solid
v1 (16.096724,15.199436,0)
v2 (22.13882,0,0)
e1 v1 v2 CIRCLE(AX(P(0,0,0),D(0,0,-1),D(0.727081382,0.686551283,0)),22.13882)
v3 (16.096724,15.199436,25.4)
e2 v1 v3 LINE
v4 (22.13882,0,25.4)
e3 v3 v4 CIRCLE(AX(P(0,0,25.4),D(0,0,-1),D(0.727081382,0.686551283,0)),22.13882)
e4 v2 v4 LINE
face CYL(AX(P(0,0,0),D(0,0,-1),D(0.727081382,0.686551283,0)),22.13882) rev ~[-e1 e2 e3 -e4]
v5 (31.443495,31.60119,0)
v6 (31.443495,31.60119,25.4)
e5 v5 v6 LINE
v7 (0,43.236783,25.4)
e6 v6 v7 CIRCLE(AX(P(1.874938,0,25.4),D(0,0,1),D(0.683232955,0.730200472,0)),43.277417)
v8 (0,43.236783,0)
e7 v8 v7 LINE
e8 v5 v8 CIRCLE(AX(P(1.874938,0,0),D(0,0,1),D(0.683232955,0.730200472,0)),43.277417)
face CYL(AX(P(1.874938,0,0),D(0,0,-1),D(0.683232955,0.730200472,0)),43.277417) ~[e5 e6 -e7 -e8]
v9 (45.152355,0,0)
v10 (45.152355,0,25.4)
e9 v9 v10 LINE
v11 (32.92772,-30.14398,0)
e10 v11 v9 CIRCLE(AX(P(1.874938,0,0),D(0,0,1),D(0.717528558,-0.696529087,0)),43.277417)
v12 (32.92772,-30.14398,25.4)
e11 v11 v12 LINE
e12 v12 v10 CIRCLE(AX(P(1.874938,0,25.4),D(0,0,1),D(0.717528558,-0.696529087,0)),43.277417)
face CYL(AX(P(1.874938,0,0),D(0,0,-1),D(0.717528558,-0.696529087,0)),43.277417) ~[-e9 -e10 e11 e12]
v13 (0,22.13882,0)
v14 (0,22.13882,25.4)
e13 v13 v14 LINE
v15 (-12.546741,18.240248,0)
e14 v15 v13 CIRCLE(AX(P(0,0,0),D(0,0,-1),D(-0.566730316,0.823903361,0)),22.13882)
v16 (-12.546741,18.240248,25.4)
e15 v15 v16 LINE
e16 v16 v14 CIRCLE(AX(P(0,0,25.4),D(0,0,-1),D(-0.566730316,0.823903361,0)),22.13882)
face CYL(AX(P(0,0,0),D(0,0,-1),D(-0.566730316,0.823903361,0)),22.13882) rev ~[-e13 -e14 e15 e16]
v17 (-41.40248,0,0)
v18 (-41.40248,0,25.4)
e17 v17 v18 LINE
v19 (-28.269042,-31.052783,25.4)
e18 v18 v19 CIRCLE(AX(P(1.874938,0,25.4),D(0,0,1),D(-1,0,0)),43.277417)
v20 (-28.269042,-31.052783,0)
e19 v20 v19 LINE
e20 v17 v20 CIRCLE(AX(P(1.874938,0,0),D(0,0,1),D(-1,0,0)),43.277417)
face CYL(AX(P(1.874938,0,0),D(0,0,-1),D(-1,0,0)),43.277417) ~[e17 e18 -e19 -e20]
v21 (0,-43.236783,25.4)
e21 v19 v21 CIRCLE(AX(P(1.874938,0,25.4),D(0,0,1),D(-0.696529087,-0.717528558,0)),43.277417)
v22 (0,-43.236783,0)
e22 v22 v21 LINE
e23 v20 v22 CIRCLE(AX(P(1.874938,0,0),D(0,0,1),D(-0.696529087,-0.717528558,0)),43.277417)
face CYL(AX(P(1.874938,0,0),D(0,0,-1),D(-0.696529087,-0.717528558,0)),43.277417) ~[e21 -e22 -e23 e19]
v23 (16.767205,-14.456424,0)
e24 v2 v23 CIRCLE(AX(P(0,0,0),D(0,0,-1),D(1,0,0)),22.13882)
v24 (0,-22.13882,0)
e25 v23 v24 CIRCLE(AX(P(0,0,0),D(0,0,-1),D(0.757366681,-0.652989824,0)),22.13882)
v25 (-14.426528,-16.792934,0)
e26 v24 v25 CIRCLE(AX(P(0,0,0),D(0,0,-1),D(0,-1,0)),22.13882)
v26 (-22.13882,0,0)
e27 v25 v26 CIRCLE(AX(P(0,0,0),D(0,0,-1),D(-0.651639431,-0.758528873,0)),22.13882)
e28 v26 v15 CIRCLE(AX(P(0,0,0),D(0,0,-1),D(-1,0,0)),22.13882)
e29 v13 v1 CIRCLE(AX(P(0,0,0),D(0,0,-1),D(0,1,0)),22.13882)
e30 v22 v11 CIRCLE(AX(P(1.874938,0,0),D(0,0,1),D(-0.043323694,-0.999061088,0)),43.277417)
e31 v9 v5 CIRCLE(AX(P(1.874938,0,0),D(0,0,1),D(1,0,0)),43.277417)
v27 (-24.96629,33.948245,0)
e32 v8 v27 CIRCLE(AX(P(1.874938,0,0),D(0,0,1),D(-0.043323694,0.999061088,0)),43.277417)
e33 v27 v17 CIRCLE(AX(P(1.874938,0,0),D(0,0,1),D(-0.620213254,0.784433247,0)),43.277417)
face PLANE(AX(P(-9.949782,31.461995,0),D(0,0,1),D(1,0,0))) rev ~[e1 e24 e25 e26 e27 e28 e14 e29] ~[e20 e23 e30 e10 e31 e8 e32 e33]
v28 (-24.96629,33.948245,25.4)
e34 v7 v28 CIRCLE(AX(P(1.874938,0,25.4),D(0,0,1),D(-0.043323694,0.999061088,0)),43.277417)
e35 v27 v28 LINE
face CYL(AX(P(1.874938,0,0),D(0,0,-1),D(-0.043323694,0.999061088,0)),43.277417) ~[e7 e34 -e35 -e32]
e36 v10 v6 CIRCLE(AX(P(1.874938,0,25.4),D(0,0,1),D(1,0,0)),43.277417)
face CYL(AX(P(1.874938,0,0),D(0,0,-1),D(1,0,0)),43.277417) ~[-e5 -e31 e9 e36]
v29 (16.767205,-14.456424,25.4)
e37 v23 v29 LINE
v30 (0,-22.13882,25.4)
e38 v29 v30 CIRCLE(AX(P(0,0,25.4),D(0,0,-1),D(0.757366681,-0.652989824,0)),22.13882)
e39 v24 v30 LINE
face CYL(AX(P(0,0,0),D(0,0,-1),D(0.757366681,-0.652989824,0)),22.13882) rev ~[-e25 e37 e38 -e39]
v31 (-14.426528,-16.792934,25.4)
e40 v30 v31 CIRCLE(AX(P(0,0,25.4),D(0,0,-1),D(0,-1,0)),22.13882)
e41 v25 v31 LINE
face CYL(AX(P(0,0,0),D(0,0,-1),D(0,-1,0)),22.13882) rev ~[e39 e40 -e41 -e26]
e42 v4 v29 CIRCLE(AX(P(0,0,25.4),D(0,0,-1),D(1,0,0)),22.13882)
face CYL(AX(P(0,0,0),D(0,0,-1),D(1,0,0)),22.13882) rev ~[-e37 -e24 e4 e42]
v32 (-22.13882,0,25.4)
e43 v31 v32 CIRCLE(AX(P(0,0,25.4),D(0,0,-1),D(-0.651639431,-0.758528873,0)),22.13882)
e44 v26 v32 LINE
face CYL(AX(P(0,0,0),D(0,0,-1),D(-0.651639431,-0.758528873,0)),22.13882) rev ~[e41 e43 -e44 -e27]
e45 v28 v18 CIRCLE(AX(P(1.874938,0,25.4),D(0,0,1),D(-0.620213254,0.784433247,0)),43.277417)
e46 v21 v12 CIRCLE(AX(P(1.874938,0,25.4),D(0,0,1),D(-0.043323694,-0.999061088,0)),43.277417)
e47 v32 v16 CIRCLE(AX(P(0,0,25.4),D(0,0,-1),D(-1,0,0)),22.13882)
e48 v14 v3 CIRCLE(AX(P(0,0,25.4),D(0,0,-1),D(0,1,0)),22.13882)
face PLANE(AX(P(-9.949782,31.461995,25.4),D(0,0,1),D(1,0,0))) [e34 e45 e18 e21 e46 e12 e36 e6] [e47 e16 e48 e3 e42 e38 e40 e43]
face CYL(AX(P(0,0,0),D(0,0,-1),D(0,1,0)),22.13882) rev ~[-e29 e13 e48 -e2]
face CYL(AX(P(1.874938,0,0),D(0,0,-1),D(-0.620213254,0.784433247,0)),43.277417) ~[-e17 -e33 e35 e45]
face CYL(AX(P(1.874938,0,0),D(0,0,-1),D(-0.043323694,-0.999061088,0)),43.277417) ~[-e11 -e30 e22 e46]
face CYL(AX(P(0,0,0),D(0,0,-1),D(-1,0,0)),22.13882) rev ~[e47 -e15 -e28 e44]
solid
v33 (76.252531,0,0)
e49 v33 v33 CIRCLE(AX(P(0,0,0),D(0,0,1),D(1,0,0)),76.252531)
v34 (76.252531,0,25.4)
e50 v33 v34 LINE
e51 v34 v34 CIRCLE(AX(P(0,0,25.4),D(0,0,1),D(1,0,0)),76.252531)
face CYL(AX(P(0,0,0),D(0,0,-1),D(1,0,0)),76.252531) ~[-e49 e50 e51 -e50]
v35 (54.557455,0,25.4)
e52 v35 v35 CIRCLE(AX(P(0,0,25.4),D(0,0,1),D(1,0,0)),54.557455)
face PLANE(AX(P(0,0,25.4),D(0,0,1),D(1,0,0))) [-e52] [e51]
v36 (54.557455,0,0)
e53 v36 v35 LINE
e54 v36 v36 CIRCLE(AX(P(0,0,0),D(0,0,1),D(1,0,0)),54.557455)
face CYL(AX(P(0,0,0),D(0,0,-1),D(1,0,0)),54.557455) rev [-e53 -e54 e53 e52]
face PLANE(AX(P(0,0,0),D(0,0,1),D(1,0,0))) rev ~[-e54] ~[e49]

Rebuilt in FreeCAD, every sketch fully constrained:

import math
import FreeCAD as App
import Part
import Sketcher
from FreeCAD import Vector

doc = App.newDocument("Part")
params = doc.addObject("Spreadsheet::Sheet", "Params")
for row, (alias, value) in enumerate([
    ("pad1_length", "1 in"),
    ("pad2_length", "1 in"),
], start=1):
    params.set(f"A{row}", alias)
    params.set(f"B{row}", "=" + value)
    params.setAlias(f"B{row}", alias)

body = doc.addObject("PartDesign::Body", "Body")

# Sketch on XY plane
sketch1 = body.newObject("Sketcher::SketchObject", "Sketch")
sketch1.AttachmentSupport = (doc.getObject("XY_Plane"), [""])
sketch1.MapMode = "FlatFace"
sketch1.addGeometry(Part.Circle(Vector(0, 0, 0), Vector(0, 0, 1), 76), False)
sketch1.addGeometry(Part.Circle(Vector(0, 0, 0), Vector(0, 0, 1), 55), False)
sketch1.addConstraint(Sketcher.Constraint("Coincident", 0, 3, -1, 1))
sketch1.addConstraint(Sketcher.Constraint("Coincident", 1, 3, -1, 1))
sketch1.addConstraint(Sketcher.Constraint("Diameter", 1, 109.11491))
sketch1.addConstraint(Sketcher.Constraint("Diameter", 0, 152.505063))
pad1 = body.newObject("PartDesign::Pad", "Pad")
pad1.Profile = sketch1
pad1.setExpression("Length", "Params.pad1_length")
body2 = doc.addObject("PartDesign::Body", "Body001")

# Sketch on XY plane
sketch2 = body2.newObject("Sketcher::SketchObject", "Sketch001")
sketch2.AttachmentSupport = (doc.getObject("XY_Plane001"), [""])
sketch2.MapMode = "FlatFace"
sketch2.addGeometry(Part.ArcOfCircle(Part.Circle(Vector(2, 0, 0), Vector(0, 0, 1), 43), math.radians(180), math.radians(226)), False)
sketch2.addGeometry(Part.ArcOfCircle(Part.Circle(Vector(2, 0, 0), Vector(0, 0, 1), 43), math.radians(-134), math.radians(-92)), False)
sketch2.addGeometry(Part.ArcOfCircle(Part.Circle(Vector(2, 0, 0), Vector(0, 0, 1), 43), math.radians(-92), math.radians(-44)), False)
sketch2.addGeometry(Part.ArcOfCircle(Part.Circle(Vector(2, 0, 0), Vector(0, 0, 1), 43), math.radians(-44), math.radians(0)), False)
sketch2.addGeometry(Part.ArcOfCircle(Part.Circle(Vector(2, 0, 0), Vector(0, 0, 1), 43), math.radians(0), math.radians(47)), False)
sketch2.addGeometry(Part.ArcOfCircle(Part.Circle(Vector(2, 0, 0), Vector(0, 0, 1), 43), math.radians(47), math.radians(92)), False)
sketch2.addGeometry(Part.ArcOfCircle(Part.Circle(Vector(2, 0, 0), Vector(0, 0, 1), 43), math.radians(92), math.radians(128)), False)
sketch2.addGeometry(Part.ArcOfCircle(Part.Circle(Vector(2, 0, 0), Vector(0, 0, 1), 43), math.radians(128), math.radians(180)), False)
sketch2.addGeometry(Part.ArcOfCircle(Part.Circle(Vector(0, 0, 0), Vector(0, 0, 1), 22), math.radians(90), math.radians(125)), False)
sketch2.addGeometry(Part.ArcOfCircle(Part.Circle(Vector(0, 0, 0), Vector(0, 0, 1), 22), math.radians(43), math.radians(90)), False)
sketch2.addGeometry(Part.ArcOfCircle(Part.Circle(Vector(0, 0, 0), Vector(0, 0, 1), 22), math.radians(0), math.radians(43)), False)
sketch2.addGeometry(Part.ArcOfCircle(Part.Circle(Vector(0, 0, 0), Vector(0, 0, 1), 22), math.radians(-41), math.radians(0)), False)
sketch2.addGeometry(Part.ArcOfCircle(Part.Circle(Vector(0, 0, 0), Vector(0, 0, 1), 22), math.radians(-90), math.radians(-41)), False)
sketch2.addGeometry(Part.ArcOfCircle(Part.Circle(Vector(0, 0, 0), Vector(0, 0, 1), 22), math.radians(-131), math.radians(-90)), False)
sketch2.addGeometry(Part.ArcOfCircle(Part.Circle(Vector(0, 0, 0), Vector(0, 0, 1), 22), math.radians(180), math.radians(229)), False)
sketch2.addGeometry(Part.ArcOfCircle(Part.Circle(Vector(0, 0, 0), Vector(0, 0, 1), 22), math.radians(125), math.radians(180)), False)
sketch2.addConstraint(Sketcher.Constraint("Tangent", 0, 2, 1, 1))
sketch2.addConstraint(Sketcher.Constraint("Tangent", 1, 2, 2, 1))
sketch2.addConstraint(Sketcher.Constraint("Tangent", 2, 2, 3, 1))
sketch2.addConstraint(Sketcher.Constraint("Tangent", 3, 2, 4, 1))
sketch2.addConstraint(Sketcher.Constraint("Tangent", 4, 2, 5, 1))
sketch2.addConstraint(Sketcher.Constraint("Tangent", 5, 2, 6, 1))
sketch2.addConstraint(Sketcher.Constraint("Tangent", 6, 2, 7, 1))
sketch2.addConstraint(Sketcher.Constraint("Tangent", 7, 2, 0, 1))
sketch2.addConstraint(Sketcher.Constraint("Tangent", 8, 1, 9, 2))
sketch2.addConstraint(Sketcher.Constraint("Tangent", 9, 1, 10, 2))
sketch2.addConstraint(Sketcher.Constraint("Tangent", 10, 1, 11, 2))
sketch2.addConstraint(Sketcher.Constraint("Tangent", 11, 1, 12, 2))
sketch2.addConstraint(Sketcher.Constraint("Tangent", 12, 1, 13, 2))
sketch2.addConstraint(Sketcher.Constraint("Tangent", 13, 1, 14, 2))
sketch2.addConstraint(Sketcher.Constraint("Tangent", 14, 1, 15, 2))
sketch2.addConstraint(Sketcher.Constraint("Tangent", 15, 1, 8, 2))
sketch2.addConstraint(Sketcher.Constraint("Coincident", 8, 3, -1, 1))
sketch2.addConstraint(Sketcher.Constraint("Coincident", 10, 3, -1, 1))
sketch2.addConstraint(Sketcher.Constraint("Coincident", 12, 3, -1, 1))
sketch2.addConstraint(Sketcher.Constraint("Coincident", 2, 3, 0, 3))
sketch2.addConstraint(Sketcher.Constraint("Coincident", 4, 3, 0, 3))
sketch2.addConstraint(Sketcher.Constraint("Equal", 4, 5))
sketch2.addConstraint(Sketcher.Constraint("Equal", 12, 13))
sketch2.addConstraint(Sketcher.Constraint("Symmetric", 1, 2, 5, 2, -1, 1))
sketch2.addConstraint(Sketcher.Constraint("PointOnObject", 0, 3, -1))
sketch2.addConstraint(Sketcher.Constraint("PointOnObject", 3, 2, -1))
sketch2.addConstraint(Sketcher.Constraint("PointOnObject", 7, 2, -1))
sketch2.addConstraint(Sketcher.Constraint("PointOnObject", 8, 1, -2))
sketch2.addConstraint(Sketcher.Constraint("PointOnObject", 10, 1, -1))
sketch2.addConstraint(Sketcher.Constraint("PointOnObject", 12, 1, -2))
sketch2.addConstraint(Sketcher.Constraint("PointOnObject", 14, 1, -1))
sketch2.addConstraint(Sketcher.Constraint("Radius", 8, 22.13882))
sketch2.addConstraint(Sketcher.Constraint("Radius", 0, 43.277417))
sketch2.addConstraint(Sketcher.Constraint("DistanceY", 1, 2, 0, 2, 12.184001))
sketch2.addConstraint(Sketcher.Constraint("DistanceX", -1, 1, 2, 2, 32.92772))
sketch2.addConstraint(Sketcher.Constraint("DistanceY", 2, 2, -1, 1, 30.14398))
sketch2.addConstraint(Sketcher.Constraint("DistanceY", -1, 1, 4, 2, 31.60119))
sketch2.addConstraint(Sketcher.Constraint("DistanceX", 6, 2, -1, 1, 24.96629))
sketch2.addConstraint(Sketcher.Constraint("DistanceX", 13, 1, -1, 1, 14.426528))
sketch2.addConstraint(Sketcher.Constraint("DistanceX", 15, 1, -1, 1, 12.546741))
sketch2.addConstraint(Sketcher.Constraint("DistanceX", -1, 1, 9, 1, 16.096724))
sketch2.addConstraint(Sketcher.Constraint("DistanceX", -1, 1, 11, 1, 16.767205))
pad2 = body2.newObject("PartDesign::Pad", "Pad001")
pad2.Profile = sketch2
pad2.setExpression("Length", "Params.pad2_length")

doc.recompute()
